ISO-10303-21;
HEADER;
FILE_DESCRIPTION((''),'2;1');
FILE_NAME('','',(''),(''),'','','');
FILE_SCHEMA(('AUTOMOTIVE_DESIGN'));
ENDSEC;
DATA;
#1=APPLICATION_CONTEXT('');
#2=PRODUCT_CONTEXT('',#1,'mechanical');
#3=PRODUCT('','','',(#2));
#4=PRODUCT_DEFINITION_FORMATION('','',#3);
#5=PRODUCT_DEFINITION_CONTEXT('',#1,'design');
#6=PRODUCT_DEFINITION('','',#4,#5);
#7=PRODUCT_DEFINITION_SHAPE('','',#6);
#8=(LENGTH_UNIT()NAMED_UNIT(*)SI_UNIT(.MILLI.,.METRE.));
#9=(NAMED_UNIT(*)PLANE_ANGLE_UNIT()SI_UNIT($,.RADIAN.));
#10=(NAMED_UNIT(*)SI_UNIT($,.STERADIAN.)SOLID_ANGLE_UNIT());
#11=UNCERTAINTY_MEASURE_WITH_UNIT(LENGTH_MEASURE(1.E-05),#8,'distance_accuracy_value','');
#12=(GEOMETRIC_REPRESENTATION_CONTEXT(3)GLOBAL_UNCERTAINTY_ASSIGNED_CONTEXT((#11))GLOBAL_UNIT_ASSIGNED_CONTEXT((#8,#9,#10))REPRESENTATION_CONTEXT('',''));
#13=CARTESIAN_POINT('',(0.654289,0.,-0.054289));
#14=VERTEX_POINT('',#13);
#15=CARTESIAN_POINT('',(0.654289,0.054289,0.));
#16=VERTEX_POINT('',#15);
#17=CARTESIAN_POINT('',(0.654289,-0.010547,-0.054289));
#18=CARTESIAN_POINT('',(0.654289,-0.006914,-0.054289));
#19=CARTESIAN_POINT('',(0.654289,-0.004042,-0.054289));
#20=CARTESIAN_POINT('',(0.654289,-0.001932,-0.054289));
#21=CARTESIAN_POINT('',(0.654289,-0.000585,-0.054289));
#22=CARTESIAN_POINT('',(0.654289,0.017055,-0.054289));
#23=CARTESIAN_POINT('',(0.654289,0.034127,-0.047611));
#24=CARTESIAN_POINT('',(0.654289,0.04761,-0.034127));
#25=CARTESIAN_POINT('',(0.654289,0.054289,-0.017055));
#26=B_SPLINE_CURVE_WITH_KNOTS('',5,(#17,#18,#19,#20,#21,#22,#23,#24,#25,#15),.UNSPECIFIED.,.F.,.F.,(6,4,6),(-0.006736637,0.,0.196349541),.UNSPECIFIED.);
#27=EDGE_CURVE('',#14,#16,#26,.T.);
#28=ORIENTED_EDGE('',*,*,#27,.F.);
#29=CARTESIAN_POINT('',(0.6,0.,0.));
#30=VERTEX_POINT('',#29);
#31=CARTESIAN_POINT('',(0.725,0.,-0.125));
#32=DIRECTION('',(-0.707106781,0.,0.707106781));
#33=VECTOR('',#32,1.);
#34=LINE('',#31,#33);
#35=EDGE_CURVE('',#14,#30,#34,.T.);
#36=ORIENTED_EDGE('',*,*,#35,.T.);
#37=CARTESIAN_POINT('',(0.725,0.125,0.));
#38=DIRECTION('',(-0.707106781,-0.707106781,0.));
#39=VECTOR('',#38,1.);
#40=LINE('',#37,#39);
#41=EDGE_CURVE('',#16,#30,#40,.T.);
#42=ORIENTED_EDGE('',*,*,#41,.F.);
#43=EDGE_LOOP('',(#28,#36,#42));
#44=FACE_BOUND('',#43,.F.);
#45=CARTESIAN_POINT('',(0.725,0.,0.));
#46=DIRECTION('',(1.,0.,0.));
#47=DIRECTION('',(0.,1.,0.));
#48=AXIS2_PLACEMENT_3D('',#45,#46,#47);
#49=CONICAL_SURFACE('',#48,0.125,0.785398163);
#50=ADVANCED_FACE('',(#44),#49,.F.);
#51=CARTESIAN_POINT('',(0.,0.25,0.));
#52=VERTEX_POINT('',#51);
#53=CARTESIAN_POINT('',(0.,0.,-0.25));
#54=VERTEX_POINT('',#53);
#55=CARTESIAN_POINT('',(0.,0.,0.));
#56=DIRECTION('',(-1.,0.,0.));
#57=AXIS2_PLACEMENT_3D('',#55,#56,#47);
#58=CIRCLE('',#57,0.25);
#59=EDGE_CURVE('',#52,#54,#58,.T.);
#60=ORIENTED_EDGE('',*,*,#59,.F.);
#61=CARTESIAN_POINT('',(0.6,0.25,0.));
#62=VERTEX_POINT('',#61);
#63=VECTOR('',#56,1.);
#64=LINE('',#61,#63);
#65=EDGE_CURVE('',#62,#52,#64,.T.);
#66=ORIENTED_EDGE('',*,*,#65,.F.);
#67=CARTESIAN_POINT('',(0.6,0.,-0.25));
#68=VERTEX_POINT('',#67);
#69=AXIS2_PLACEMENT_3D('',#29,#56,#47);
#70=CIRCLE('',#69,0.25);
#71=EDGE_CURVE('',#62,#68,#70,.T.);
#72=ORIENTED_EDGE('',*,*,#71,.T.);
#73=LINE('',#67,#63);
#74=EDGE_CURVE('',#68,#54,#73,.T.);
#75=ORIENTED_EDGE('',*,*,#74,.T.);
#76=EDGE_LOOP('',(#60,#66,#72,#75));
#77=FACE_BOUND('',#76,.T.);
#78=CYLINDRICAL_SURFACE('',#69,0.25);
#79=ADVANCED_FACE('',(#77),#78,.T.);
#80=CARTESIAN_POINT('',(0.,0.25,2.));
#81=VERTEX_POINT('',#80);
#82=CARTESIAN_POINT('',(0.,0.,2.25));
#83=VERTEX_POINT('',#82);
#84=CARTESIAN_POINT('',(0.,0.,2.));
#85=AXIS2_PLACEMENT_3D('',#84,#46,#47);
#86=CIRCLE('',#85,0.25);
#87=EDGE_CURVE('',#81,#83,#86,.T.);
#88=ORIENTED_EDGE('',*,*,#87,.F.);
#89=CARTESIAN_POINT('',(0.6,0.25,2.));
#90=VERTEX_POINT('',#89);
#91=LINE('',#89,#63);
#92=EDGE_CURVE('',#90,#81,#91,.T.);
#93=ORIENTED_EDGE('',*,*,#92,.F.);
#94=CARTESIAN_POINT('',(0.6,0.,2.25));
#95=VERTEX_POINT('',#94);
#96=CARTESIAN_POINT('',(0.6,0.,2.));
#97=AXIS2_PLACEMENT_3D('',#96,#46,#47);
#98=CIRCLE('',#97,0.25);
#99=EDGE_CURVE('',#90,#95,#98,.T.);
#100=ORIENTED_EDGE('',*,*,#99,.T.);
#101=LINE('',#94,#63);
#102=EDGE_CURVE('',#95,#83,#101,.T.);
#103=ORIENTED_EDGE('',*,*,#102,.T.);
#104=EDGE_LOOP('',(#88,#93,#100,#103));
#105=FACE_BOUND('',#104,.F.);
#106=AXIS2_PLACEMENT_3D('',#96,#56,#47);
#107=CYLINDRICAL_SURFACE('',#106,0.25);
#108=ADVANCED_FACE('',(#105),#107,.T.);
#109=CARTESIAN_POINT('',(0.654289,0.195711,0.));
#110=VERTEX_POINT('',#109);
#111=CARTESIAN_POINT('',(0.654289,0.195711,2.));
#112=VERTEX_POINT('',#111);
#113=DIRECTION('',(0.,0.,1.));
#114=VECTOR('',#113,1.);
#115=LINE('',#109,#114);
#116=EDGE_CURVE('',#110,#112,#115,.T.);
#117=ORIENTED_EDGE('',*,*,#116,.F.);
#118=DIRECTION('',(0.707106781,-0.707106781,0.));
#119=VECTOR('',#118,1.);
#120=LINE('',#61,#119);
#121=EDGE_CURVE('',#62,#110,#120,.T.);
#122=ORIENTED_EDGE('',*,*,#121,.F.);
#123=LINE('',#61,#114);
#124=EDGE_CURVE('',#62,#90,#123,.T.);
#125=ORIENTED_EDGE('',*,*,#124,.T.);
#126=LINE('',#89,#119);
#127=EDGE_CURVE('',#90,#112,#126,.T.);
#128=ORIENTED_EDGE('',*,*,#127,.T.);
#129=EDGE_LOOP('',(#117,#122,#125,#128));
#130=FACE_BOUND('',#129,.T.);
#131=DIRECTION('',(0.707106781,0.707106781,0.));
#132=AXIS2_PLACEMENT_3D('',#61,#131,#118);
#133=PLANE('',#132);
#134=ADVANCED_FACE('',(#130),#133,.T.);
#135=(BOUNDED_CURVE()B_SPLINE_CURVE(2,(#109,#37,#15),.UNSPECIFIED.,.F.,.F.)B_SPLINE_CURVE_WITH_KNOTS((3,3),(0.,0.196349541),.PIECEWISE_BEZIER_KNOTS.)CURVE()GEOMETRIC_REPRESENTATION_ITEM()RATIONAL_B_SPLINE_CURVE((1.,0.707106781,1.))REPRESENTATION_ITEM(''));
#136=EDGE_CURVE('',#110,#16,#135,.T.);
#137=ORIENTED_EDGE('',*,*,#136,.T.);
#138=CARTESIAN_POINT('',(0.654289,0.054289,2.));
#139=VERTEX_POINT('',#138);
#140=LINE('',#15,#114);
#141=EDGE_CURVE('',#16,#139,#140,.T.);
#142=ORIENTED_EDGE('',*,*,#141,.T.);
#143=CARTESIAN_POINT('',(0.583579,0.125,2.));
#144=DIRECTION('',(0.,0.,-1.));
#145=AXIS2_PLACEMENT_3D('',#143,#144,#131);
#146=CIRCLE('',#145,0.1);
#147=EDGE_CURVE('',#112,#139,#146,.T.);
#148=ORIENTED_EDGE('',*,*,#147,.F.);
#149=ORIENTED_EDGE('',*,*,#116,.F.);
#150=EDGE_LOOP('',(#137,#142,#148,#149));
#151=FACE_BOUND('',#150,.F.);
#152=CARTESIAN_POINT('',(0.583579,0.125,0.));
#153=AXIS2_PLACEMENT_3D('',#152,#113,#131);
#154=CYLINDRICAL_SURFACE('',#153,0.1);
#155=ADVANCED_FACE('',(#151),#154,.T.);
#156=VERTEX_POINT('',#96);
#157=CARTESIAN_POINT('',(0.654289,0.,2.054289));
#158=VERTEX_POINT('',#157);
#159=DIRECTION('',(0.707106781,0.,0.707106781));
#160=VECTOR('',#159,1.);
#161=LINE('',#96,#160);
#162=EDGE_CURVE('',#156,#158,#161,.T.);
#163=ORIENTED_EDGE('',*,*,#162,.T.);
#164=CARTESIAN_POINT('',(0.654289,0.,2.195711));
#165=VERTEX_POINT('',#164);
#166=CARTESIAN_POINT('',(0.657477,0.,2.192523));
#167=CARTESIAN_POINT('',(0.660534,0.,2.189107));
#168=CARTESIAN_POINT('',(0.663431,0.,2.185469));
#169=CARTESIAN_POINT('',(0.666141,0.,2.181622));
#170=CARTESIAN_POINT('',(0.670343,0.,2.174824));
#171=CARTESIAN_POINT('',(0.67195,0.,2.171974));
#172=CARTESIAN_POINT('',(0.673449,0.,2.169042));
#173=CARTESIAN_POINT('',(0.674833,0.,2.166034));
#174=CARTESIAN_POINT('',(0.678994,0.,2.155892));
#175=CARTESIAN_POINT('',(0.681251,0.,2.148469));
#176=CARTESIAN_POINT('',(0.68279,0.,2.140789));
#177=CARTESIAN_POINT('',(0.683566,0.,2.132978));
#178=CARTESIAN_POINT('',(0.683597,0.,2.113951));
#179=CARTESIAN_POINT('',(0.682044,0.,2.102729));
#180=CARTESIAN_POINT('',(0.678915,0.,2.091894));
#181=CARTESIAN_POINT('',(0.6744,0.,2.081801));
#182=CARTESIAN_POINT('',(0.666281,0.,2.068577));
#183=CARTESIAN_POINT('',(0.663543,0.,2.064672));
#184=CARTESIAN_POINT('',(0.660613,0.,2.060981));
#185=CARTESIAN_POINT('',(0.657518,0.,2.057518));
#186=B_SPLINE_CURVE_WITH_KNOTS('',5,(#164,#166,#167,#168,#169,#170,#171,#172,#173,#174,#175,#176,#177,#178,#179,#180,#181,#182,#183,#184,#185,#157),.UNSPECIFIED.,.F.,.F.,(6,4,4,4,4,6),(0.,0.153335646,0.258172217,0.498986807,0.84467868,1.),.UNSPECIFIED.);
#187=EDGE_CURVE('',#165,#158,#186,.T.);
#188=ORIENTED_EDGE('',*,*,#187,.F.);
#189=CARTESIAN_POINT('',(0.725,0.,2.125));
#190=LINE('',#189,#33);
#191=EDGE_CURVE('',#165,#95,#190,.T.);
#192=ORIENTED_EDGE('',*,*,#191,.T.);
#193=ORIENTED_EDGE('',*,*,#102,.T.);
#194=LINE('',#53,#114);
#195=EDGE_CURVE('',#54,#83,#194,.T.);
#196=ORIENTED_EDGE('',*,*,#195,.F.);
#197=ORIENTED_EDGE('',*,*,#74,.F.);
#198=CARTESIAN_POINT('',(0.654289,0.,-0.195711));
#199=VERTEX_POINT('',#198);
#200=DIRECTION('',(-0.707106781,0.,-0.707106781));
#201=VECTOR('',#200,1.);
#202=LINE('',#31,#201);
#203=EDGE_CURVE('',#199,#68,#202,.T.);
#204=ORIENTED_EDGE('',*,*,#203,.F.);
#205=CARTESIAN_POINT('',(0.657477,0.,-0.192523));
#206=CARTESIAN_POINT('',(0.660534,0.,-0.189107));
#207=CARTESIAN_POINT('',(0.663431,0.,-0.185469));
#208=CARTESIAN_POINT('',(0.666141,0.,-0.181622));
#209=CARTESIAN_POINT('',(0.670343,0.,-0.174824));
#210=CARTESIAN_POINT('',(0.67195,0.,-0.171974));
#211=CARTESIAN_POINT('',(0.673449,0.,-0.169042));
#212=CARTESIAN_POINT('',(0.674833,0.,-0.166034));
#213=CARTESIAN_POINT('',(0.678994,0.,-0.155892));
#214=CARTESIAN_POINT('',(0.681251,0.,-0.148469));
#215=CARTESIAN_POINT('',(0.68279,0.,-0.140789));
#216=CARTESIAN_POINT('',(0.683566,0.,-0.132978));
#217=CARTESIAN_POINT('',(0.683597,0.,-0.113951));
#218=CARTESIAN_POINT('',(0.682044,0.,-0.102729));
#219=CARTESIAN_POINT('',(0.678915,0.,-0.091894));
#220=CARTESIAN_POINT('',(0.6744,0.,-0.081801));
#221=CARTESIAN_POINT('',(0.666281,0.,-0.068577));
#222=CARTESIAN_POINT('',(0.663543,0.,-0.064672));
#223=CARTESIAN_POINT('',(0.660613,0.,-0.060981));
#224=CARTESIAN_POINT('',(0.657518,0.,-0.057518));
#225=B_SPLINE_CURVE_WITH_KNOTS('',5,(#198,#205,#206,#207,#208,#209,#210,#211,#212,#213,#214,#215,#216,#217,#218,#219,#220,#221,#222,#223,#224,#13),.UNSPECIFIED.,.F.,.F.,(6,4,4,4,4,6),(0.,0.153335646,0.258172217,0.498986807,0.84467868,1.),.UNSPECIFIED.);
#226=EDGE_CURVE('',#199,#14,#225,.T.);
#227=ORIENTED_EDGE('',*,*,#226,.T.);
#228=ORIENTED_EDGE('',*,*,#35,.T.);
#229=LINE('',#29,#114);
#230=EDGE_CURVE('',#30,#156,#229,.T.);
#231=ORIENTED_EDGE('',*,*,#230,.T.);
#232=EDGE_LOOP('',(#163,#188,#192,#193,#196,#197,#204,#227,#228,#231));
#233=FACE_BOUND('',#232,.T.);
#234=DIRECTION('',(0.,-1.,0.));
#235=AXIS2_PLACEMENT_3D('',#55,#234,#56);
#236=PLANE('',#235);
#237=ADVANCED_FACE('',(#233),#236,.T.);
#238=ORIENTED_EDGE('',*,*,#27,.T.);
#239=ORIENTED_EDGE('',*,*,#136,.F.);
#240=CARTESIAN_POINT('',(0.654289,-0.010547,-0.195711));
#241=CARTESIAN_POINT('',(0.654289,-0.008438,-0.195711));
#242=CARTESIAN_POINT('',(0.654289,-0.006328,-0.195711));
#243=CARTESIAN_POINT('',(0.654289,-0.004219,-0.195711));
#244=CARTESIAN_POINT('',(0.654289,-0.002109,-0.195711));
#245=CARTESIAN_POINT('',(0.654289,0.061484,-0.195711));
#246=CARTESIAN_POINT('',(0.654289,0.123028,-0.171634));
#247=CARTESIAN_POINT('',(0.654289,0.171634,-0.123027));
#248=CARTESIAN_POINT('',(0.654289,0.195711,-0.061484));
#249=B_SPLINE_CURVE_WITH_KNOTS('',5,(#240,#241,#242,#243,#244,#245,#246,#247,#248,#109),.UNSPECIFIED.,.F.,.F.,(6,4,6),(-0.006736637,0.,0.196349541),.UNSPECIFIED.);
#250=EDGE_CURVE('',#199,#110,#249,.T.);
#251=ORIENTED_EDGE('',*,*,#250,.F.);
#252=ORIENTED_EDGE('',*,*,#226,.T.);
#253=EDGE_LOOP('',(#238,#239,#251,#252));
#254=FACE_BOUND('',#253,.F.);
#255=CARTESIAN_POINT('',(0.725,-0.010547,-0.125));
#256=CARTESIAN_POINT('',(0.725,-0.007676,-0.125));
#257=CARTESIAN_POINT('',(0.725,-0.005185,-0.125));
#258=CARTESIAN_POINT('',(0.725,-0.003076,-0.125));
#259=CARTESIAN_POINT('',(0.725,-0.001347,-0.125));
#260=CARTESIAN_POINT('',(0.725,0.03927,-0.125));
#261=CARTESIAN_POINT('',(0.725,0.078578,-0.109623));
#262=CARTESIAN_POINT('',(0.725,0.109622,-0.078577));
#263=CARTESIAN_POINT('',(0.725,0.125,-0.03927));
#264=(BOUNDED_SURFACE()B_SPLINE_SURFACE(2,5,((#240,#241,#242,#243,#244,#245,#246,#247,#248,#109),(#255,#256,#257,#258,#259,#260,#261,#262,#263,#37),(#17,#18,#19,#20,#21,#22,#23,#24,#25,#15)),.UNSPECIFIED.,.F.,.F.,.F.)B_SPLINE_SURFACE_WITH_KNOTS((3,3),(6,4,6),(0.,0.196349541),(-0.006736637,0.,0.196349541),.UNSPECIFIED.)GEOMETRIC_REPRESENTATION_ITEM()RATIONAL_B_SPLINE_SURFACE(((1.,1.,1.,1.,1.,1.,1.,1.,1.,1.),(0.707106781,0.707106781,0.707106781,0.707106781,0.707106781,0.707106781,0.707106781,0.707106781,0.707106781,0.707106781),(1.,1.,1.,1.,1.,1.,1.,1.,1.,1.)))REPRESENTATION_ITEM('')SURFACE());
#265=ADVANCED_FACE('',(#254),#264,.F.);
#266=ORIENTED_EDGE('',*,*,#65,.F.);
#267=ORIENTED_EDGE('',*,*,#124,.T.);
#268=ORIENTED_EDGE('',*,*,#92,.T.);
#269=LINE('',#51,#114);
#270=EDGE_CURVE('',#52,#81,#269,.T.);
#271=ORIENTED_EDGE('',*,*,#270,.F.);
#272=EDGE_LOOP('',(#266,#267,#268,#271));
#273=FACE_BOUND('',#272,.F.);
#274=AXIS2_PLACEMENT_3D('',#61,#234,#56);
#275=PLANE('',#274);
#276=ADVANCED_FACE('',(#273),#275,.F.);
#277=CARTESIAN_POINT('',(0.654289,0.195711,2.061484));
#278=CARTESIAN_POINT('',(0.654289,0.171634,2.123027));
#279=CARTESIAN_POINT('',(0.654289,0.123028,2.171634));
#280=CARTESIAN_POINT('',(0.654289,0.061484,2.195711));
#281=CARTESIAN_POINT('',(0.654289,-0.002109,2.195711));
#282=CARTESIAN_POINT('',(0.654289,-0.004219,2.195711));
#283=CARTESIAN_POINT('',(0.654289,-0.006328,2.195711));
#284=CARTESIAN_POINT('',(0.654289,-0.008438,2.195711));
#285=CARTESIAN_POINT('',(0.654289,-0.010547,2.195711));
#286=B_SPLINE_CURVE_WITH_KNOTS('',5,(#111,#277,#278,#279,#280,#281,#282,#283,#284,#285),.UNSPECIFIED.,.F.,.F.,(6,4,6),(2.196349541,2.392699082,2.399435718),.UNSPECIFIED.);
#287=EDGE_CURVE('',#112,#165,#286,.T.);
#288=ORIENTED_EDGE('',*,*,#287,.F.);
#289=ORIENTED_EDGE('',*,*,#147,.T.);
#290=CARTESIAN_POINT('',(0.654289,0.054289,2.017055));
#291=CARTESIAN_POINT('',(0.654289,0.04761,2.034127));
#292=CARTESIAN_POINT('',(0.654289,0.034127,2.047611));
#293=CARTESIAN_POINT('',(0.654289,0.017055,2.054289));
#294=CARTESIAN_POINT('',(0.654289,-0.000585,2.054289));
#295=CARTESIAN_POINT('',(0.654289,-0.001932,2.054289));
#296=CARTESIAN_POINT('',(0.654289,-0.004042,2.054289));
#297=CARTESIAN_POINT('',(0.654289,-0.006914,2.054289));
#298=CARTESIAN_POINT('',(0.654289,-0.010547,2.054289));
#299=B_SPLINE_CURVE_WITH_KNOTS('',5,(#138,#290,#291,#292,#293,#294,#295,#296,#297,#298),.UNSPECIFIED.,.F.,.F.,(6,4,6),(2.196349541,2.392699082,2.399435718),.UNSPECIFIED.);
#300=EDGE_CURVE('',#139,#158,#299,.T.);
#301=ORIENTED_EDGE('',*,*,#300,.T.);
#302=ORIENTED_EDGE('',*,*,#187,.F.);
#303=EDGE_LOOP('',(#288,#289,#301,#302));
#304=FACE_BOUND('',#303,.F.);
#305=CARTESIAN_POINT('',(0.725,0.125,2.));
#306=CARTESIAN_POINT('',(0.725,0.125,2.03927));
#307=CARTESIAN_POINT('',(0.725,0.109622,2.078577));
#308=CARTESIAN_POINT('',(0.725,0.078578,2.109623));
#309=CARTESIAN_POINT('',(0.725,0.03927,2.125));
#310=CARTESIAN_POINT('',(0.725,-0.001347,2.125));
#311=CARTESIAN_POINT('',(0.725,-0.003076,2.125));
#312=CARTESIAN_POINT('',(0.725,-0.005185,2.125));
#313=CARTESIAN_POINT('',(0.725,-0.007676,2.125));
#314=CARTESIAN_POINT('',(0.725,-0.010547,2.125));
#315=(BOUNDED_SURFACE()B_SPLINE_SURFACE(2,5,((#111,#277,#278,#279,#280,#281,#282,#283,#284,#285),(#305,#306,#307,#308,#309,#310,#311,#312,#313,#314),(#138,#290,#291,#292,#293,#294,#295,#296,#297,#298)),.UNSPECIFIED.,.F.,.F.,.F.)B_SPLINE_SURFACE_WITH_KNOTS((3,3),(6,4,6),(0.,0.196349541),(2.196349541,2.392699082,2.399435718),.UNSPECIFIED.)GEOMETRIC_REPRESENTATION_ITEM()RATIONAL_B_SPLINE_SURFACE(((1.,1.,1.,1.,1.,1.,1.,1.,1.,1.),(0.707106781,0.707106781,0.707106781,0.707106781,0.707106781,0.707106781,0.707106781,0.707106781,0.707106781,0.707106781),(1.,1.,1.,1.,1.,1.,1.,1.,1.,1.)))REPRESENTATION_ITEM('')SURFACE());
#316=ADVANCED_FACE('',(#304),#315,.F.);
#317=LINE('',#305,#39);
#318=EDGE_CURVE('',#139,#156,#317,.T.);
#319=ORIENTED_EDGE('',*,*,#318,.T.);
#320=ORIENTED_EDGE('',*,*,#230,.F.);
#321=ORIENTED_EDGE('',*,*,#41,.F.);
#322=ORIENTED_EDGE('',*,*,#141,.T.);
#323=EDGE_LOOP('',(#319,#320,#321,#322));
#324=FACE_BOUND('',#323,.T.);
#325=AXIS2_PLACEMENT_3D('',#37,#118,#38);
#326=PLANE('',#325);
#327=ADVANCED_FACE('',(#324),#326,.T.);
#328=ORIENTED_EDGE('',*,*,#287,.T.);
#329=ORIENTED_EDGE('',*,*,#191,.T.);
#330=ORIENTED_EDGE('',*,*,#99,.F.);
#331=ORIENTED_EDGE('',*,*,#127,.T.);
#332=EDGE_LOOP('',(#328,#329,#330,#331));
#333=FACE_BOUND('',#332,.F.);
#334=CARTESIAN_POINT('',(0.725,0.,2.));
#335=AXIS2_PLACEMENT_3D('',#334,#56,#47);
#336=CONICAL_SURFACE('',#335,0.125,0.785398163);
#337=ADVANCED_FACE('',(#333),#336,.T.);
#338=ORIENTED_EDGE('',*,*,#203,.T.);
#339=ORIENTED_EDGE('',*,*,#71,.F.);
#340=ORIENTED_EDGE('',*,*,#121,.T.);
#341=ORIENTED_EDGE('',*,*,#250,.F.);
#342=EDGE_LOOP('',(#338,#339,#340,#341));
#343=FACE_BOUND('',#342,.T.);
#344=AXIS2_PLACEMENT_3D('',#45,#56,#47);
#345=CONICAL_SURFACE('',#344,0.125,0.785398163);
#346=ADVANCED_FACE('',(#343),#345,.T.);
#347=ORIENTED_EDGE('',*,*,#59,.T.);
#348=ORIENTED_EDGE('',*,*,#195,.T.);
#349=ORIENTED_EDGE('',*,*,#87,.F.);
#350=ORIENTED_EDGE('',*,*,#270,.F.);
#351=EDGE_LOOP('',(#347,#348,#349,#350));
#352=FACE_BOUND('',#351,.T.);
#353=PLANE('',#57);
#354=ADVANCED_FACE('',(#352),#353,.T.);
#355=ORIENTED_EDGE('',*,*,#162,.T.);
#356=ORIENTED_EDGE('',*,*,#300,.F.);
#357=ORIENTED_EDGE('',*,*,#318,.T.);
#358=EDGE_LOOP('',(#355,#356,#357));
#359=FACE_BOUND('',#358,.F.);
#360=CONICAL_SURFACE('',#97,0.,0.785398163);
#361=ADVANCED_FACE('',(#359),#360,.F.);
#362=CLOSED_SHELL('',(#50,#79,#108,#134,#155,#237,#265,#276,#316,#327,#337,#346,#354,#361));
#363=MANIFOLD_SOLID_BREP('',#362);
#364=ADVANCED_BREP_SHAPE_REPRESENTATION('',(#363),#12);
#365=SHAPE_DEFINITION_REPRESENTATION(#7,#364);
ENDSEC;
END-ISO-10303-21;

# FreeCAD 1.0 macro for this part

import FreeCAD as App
import Part
import Sketcher


def edges_at(feature, points):
    """Names of the edges that pass closest to the given points."""
    edges = feature.Shape.Edges
    near = lambda p: min(range(len(edges)), key=lambda i: edges[i].distToShape(Part.Vertex(*p))[0])
    return sorted({f"Edge{near(p) + 1}" for p in points})


def add_polygon(sketch, points):
    """Adds a closed chain of lines whose ends are joined by coincident constraints."""
    first, n = sketch.GeometryCount, len(points)
    for a, b in zip(points, points[1:] + points[:1]):
        sketch.addGeometry(Part.LineSegment(App.Vector(*a, 0), App.Vector(*b, 0)), False)
    for i in range(n):
        sketch.addConstraint(Sketcher.Constraint("Coincident", first + i, 2, first + (i + 1) % n, 1))

doc = App.newDocument("Part")
params = doc.addObject("Spreadsheet::Sheet", "Params")
for row, (alias, value) in enumerate([
    ("sketch1_width", "0.6 mm"),
    ("sketch1_height", "0.25 mm"),
    ("pad1_length", "2 mm"),
    ("sketch2_width", "0.6 mm"),
    ("sketch2_height", "0.25 mm"),
    ("revolution_angle", "90 deg"),
    ("sketch3_width", "0.6 mm"),
    ("sketch3_height", "0.25 mm"),
    ("revolution2_angle", "90 deg"),
    ("fillet_radius", "0.1 mm"),
], start=1):
    params.set(f"A{row}", alias)
    params.set(f"B{row}", "=" + value)
    params.setAlias(f"B{row}", alias)

body = doc.addObject("PartDesign::Body", "Body")

# Sketch on XY plane
sketch1 = doc.addObject("Sketcher::SketchObject", "Sketch")
body.addObject(sketch1)
sketch1.AttachmentSupport = (doc.XY_Plane, [""])
sketch1.MapMode = "FlatFace"
add_polygon(sketch1, [(0, 0.25), (0, 0), (0.6, 0), (0.72, 0.12), (0.6, 0.25)])  # lines 0-4
sketch1.addConstraint([
    Sketcher.Constraint("Vertical", 0),
    Sketcher.Constraint("Horizontal", 1),
    Sketcher.Constraint("Horizontal", 4),
    Sketcher.Constraint("Coincident", 0, 2, -1, 1),
    Sketcher.Constraint("Perpendicular", 2, 3),
    Sketcher.Constraint("Vertical", 1, 2, 3, 2),
    Sketcher.Constraint("Equal", 2, 3),
    Sketcher.Constraint("DistanceX", 1, 1, 1, 2, 0.6),
    Sketcher.Constraint("DistanceY", 0, 2, 0, 1, 0.25),
])
sketch1.setExpression("Constraints[12]", "Params.sketch1_width")
sketch1.setExpression("Constraints[13]", "Params.sketch1_height")
pad1 = doc.addObject("PartDesign::Pad", "Pad")
body.addObject(pad1)
pad1.Profile = sketch1
pad1.setExpression("Length", "Params.pad1_length")

# Sketch on XY plane
sketch2 = doc.addObject("Sketcher::SketchObject", "Sketch001")
body.addObject(sketch2)
sketch2.AttachmentSupport = (doc.XY_Plane, [""])
sketch2.MapMode = "FlatFace"
sketch2.AttachmentOffset = App.Placement(App.Vector(0, 0, 2), App.Rotation())
add_polygon(sketch2, [(0.6, 0.25), (0, 0.25), (0, 0), (0.6, 0), (0.72, 0.12)])  # lines 0-4
sketch2.addConstraint([
    Sketcher.Constraint("Horizontal", 0),
    Sketcher.Constraint("Vertical", 1),
    Sketcher.Constraint("Horizontal", 2),
    Sketcher.Constraint("Coincident", 1, 2, -1, 1),
    Sketcher.Constraint("Perpendicular", 3, 4),
    Sketcher.Constraint("Vertical", 2, 2, 4, 2),
    Sketcher.Constraint("Equal", 3, 4),
    Sketcher.Constraint("DistanceX", 0, 2, 0, 1, 0.6),
    Sketcher.Constraint("DistanceY", 1, 2, 1, 1, 0.25),
])
sketch2.setExpression("Constraints[12]", "Params.sketch2_width")
sketch2.setExpression("Constraints[13]", "Params.sketch2_height")
revolution = doc.addObject("PartDesign::Revolution", "Revolution")
body.addObject(revolution)
revolution.Profile = sketch2
revolution.ReferenceAxis = (sketch2, ["H_Axis"])
revolution.setExpression("Angle", "Params.revolution_angle")

# Sketch on XY plane
sketch3 = doc.addObject("Sketcher::SketchObject", "Sketch002")
body.addObject(sketch3)
sketch3.AttachmentSupport = (doc.XY_Plane, [""])
sketch3.MapMode = "FlatFace"
add_polygon(sketch3, [(0, 0.25), (0.6, 0.25), (0.72, 0.12), (0.6, 0), (0, 0)])  # lines 0-4
sketch3.addConstraint([
    Sketcher.Constraint("Horizontal", 0),
    Sketcher.Constraint("Horizontal", 3),
    Sketcher.Constraint("Vertical", 4),
    Sketcher.Constraint("Coincident", 3, 2, -1, 1),
    Sketcher.Constraint("Perpendicular", 1, 2),
    Sketcher.Constraint("Vertical", 0, 2, 2, 2),
    Sketcher.Constraint("Equal", 1, 2),
    Sketcher.Constraint("DistanceX", 0, 1, 0, 2, 0.6),
    Sketcher.Constraint("DistanceY", 4, 1, 4, 2, 0.25),
])
sketch3.setExpression("Constraints[12]", "Params.sketch3_width")
sketch3.setExpression("Constraints[13]", "Params.sketch3_height")
revolution2 = doc.addObject("PartDesign::Revolution", "Revolution001")
body.addObject(revolution2)
revolution2.Profile = sketch3
revolution2.ReferenceAxis = (sketch3, ["H_Axis"])
revolution2.setExpression("Angle", "Params.revolution2_angle")
revolution2.Reversed = True
doc.recompute()

fillet = doc.addObject("PartDesign::Fillet", "Fillet")
body.addObject(fillet)
fillet.Base = (revolution2, edges_at(revolution2, [(0.725, 0.088, 2.088), (0.725, 0.088, -0.088), (0.725, 0.125, 1)]))
fillet.setExpression("Radius", "Params.fillet_radius")

doc.recompute()
